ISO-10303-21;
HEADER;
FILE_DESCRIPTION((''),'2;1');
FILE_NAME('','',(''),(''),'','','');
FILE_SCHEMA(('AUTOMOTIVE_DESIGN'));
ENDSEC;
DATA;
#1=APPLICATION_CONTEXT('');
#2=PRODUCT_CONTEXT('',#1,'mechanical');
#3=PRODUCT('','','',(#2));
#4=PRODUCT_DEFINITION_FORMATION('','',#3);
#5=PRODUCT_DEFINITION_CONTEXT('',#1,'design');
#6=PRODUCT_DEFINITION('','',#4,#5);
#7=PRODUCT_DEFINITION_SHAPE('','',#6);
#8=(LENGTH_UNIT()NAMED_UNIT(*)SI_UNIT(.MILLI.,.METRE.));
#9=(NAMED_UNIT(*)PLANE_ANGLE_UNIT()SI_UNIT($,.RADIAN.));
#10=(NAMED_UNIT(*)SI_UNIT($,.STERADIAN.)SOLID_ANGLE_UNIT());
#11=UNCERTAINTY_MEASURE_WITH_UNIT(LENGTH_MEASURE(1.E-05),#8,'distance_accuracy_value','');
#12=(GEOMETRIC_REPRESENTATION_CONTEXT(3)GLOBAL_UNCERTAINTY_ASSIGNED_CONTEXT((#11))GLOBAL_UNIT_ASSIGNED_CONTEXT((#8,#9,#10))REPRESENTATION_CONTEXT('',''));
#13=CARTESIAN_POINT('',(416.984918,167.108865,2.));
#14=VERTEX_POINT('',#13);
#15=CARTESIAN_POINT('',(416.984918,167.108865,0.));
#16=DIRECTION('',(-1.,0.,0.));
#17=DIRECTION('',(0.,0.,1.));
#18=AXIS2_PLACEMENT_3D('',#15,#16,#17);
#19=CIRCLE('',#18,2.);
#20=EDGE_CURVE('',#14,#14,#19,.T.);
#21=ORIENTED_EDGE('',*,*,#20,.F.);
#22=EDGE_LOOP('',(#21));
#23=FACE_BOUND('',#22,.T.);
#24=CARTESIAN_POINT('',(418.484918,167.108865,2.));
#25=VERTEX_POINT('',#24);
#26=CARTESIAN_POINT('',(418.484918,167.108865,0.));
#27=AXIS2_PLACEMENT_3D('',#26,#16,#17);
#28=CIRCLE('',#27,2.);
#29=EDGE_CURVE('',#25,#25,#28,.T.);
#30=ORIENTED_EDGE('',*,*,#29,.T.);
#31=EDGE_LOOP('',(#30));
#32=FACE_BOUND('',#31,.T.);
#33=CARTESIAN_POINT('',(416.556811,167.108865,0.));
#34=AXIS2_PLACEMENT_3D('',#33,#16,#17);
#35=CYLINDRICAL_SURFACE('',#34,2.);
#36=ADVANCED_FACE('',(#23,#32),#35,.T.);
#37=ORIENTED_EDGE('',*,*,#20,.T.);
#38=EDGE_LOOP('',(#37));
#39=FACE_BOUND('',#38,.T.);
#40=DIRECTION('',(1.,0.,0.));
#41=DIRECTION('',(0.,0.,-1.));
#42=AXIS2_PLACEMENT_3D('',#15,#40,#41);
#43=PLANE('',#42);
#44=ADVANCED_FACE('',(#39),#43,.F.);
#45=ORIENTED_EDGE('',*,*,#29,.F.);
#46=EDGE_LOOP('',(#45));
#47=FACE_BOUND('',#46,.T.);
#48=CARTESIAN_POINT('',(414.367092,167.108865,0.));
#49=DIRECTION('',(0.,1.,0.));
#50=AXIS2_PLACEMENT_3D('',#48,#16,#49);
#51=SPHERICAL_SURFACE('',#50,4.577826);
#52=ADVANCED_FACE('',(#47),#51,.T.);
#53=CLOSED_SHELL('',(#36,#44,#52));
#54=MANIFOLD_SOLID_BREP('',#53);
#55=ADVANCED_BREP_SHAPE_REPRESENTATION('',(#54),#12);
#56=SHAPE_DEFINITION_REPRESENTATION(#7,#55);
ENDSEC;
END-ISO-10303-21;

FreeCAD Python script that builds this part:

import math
import FreeCAD as App
import Part
import Sketcher
from FreeCAD import Vector

doc = App.newDocument("Part")
params = doc.addObject("Spreadsheet::Sheet", "Params")
for row, (alias, value) in enumerate([
    ("sketch1_height", "2 mm"),
    ("sketch1_width", "1.5 mm"),
    ("sketch1_width2", "1.96 mm"),
    ("revolution_angle", "360 deg"),
], start=1):
    params.set(f"A{row}", alias)
    params.set(f"B{row}", "=" + value)
    params.setAlias(f"B{row}", alias)

body = doc.addObject("PartDesign::Body", "Body")

# Sketch on XY plane
sketch1 = body.newObject("Sketcher::SketchObject", "Sketch")
sketch1.AttachmentSupport = (doc.getObject("XY_Plane"), [""])
sketch1.MapMode = "FlatFace"
sketch1.addGeometry([
    Part.LineSegment(Vector(416.984918, 169.108865, 0), Vector(416.984918, 167.108865, 0)),
    Part.LineSegment(Vector(416.984918, 167.108865, 0), Vector(418.944918, 167.108865, 0)),
    Part.ArcOfCircle(Part.Circle(Vector(414.367092, 167.108865, 0), Vector(0, 0, 1), 4.577826), math.radians(0), math.radians(25.905529)),
    Part.LineSegment(Vector(418.484918, 169.108865, 0), Vector(416.984918, 169.108865, 0)),
], False)
sketch1.addGeometry(Part.LineSegment(Vector(414.367092, 167.108865, 0), Vector(418.944918, 167.108865, 0)), True)  # axis
sketch1.addConstraint([
    Sketcher.Constraint("Coincident", 0, 2, 1, 1),
    Sketcher.Constraint("Coincident", 1, 2, 2, 1),
    Sketcher.Constraint("Coincident", 2, 2, 3, 1),
    Sketcher.Constraint("Coincident", 3, 2, 0, 1),
    Sketcher.Constraint("Vertical", 0),
    Sketcher.Constraint("Horizontal", 1),
    Sketcher.Constraint("Horizontal", 3),
    Sketcher.Constraint("Horizontal", 4),
    Sketcher.Constraint("Coincident", 4, 1, 2, 3),
    Sketcher.Constraint("Coincident", 4, 2, 1, 2),
    Sketcher.Constraint("DistanceY", 0, 2, 0, 1, 2.0),
    Sketcher.Constraint("DistanceX", 3, 2, 3, 1, 1.5),
    Sketcher.Constraint("DistanceX", 1, 1, 1, 2, 1.96),
    Sketcher.Constraint("DistanceX", -1, 1, 2, 3, 414.367092),
    Sketcher.Constraint("DistanceY", -1, 1, 2, 3, 167.108865),
])
sketch1.setExpression("Constraints[10]", "Params.sketch1_height")
sketch1.setExpression("Constraints[11]", "Params.sketch1_width")
sketch1.setExpression("Constraints[12]", "Params.sketch1_width2")
revolution = body.newObject("PartDesign::Revolution", "Revolution")
revolution.Profile = sketch1
revolution.ReferenceAxis = (sketch1, ["Axis0"])
revolution.setExpression("Angle", "Params.revolution_angle")

doc.recompute()
